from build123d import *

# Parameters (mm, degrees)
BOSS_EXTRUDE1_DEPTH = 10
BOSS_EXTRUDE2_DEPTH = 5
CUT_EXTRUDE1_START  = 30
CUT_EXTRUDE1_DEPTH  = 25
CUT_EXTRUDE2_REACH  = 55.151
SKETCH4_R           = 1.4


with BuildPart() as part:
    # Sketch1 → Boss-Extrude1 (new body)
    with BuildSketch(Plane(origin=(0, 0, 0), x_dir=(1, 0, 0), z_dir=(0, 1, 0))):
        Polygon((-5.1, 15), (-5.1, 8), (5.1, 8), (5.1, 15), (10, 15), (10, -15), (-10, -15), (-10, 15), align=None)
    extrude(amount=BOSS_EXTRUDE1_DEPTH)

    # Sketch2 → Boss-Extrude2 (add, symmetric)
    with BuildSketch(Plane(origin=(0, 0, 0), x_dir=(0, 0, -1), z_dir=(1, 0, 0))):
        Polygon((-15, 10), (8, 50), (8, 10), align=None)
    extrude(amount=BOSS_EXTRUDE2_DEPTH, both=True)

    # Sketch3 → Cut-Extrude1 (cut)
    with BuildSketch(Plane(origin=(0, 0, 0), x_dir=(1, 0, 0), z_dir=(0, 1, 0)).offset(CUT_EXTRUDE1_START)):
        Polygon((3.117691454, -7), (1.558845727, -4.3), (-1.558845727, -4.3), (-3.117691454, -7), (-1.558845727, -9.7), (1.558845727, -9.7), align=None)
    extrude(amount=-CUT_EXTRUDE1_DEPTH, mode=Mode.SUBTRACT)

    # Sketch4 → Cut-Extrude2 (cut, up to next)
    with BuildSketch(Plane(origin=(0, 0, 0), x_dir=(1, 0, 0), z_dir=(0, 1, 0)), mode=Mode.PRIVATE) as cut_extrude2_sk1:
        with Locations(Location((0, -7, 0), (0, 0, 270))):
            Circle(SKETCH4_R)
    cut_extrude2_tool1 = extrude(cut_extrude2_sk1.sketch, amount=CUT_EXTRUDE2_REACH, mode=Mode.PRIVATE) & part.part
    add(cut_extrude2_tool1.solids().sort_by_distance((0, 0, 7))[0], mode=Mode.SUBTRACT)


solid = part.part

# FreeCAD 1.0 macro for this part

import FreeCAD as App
import Part
import Sketcher

V = App.Vector
Q = App.Units.Quantity


def add_polygon(sketch, points):
    """Adds a closed chain of lines whose ends are joined by coincident constraints."""
    first, n = sketch.GeometryCount, len(points)
    for a, b in zip(points, points[1:] + points[:1]):
        sketch.addGeometry(Part.LineSegment(App.Vector(*a, 0), App.Vector(*b, 0)), False)
    for i in range(n):
        sketch.addConstraint(Sketcher.Constraint("Coincident", first + i, 2, first + (i + 1) % n, 1))

doc = App.newDocument("Part")
body = doc.addObject("PartDesign::Body", "Body")

# Sketch on XZ plane
sketch1 = body.newObject("Sketcher::SketchObject", "Sketch")
sketch1.AttachmentSupport = (doc.getObject("XZ_Plane"), [""])
sketch1.MapMode = "FlatFace"
add_polygon(sketch1, [(-5.1, -8), (-5.1, -15), (-10, -15), (-10, 15), (10, 15), (10, -15), (5.1, -15), (5.1, -8)])  # lines 0-7
sketch1.addConstraint([
    Sketcher.Constraint("Vertical", 0),
    Sketcher.Constraint("Horizontal", 1),
    Sketcher.Constraint("Vertical", 2),
    Sketcher.Constraint("Horizontal", 3),
    Sketcher.Constraint("Vertical", 4),
    Sketcher.Constraint("Horizontal", 5),
    Sketcher.Constraint("Vertical", 6),
    Sketcher.Constraint("Horizontal", 7),
    Sketcher.Constraint("Symmetric", 1, 2, 3, 2, -1, 1),
    Sketcher.Constraint("Symmetric", 0, 2, 5, 2, -2),
    Sketcher.Constraint("DistanceX", 3, 1, 3, 2, 20.0),
    Sketcher.Constraint("DistanceY", 0, 2, 0, 1, 7.0),
    Sketcher.Constraint("DistanceY", 2, 1, 2, 2, 30.0),
    Sketcher.Constraint("DistanceX", 1, 2, 1, 1, 4.9),
])
pad1 = body.newObject("PartDesign::Pad", "Pad")
pad1.Profile = sketch1
pad1.Length = 10
pad1.Reversed = True

# Sketch on YZ plane
sketch2 = body.newObject("Sketcher::SketchObject", "Sketch001")
sketch2.AttachmentSupport = (doc.getObject("YZ_Plane"), [""])
sketch2.MapMode = "FlatFace"
add_polygon(sketch2, [(50, -8), (10, 15), (10, -8)])  # lines 0-2
sketch2.addConstraint([
    Sketcher.Constraint("Vertical", 1),
    Sketcher.Constraint("Horizontal", 2),
    Sketcher.Constraint("DistanceX", 2, 1, 2, 2, 40.0),
    Sketcher.Constraint("DistanceY", 1, 2, 1, 1, 23.0),
    Sketcher.Constraint("DistanceX", -1, 1, 0, 2, 10.0),
    Sketcher.Constraint("DistanceY", -1, 1, 0, 2, 15.0),
])
pad2 = body.newObject("PartDesign::Pad", "Pad001")
pad2.Profile = sketch2
pad2.Length = 10
pad2.Midplane = True

# Sketch on XZ plane
sketch3 = body.newObject("Sketcher::SketchObject", "Sketch002")
sketch3.AttachmentSupport = (doc.getObject("XZ_Plane"), [""])
sketch3.MapMode = "FlatFace"
sketch3.AttachmentOffset = App.Placement(V(0, 0, -30), App.Rotation())
add_polygon(sketch3, [(3.117691, 7), (1.558846, 4.3), (-1.558846, 4.3), (-3.117691, 7), (-1.558846, 9.7), (1.558846, 9.7)])  # lines 0-5
sketch3.addConstraint([
    Sketcher.Constraint("Horizontal", 1),
    Sketcher.Constraint("Horizontal", 4),
    Sketcher.Constraint("Symmetric", 2, 2, 5, 2, -2),
    Sketcher.Constraint("Parallel", 0, 3),
    Sketcher.Constraint("Parallel", 2, 5),
    Sketcher.Constraint("Vertical", 1, 2, 3, 2),
    Sketcher.Constraint("Vertical", 0, 2, 4, 2),
    Sketcher.Constraint("Angle", 0, Q("-120 deg")),
    Sketcher.Constraint("DistanceY", -1, 1, 2, 2, 7.0),
    Sketcher.Constraint("DistanceY", -1, 1, 0, 2, 4.3),
    Sketcher.Constraint("DistanceX", 1, 2, 1, 1, 3.117691),
])
pocket1 = body.newObject("PartDesign::Pocket", "Pocket")
pocket1.Profile = sketch3
pocket1.Length = 25
pocket1.Reversed = True

# Sketch on XZ plane
sketch4 = body.newObject("Sketcher::SketchObject", "Sketch003")
sketch4.AttachmentSupport = (doc.getObject("XZ_Plane"), [""])
sketch4.MapMode = "FlatFace"
sketch4.addGeometry(Part.Circle(V(0, 7, 0), V(0, 0, 1), 1.4), False)
sketch4.addConstraint([
    Sketcher.Constraint("PointOnObject", 0, 3, -2),
    Sketcher.Constraint("Diameter", 0, 2.8),
    Sketcher.Constraint("DistanceY", -1, 1, 0, 3, 7.0),
])
pocket2 = body.newObject("PartDesign::Pocket", "Pocket001")
pocket2.Profile = sketch4
pocket2.Type = "UpToFirst"

doc.recompute()
